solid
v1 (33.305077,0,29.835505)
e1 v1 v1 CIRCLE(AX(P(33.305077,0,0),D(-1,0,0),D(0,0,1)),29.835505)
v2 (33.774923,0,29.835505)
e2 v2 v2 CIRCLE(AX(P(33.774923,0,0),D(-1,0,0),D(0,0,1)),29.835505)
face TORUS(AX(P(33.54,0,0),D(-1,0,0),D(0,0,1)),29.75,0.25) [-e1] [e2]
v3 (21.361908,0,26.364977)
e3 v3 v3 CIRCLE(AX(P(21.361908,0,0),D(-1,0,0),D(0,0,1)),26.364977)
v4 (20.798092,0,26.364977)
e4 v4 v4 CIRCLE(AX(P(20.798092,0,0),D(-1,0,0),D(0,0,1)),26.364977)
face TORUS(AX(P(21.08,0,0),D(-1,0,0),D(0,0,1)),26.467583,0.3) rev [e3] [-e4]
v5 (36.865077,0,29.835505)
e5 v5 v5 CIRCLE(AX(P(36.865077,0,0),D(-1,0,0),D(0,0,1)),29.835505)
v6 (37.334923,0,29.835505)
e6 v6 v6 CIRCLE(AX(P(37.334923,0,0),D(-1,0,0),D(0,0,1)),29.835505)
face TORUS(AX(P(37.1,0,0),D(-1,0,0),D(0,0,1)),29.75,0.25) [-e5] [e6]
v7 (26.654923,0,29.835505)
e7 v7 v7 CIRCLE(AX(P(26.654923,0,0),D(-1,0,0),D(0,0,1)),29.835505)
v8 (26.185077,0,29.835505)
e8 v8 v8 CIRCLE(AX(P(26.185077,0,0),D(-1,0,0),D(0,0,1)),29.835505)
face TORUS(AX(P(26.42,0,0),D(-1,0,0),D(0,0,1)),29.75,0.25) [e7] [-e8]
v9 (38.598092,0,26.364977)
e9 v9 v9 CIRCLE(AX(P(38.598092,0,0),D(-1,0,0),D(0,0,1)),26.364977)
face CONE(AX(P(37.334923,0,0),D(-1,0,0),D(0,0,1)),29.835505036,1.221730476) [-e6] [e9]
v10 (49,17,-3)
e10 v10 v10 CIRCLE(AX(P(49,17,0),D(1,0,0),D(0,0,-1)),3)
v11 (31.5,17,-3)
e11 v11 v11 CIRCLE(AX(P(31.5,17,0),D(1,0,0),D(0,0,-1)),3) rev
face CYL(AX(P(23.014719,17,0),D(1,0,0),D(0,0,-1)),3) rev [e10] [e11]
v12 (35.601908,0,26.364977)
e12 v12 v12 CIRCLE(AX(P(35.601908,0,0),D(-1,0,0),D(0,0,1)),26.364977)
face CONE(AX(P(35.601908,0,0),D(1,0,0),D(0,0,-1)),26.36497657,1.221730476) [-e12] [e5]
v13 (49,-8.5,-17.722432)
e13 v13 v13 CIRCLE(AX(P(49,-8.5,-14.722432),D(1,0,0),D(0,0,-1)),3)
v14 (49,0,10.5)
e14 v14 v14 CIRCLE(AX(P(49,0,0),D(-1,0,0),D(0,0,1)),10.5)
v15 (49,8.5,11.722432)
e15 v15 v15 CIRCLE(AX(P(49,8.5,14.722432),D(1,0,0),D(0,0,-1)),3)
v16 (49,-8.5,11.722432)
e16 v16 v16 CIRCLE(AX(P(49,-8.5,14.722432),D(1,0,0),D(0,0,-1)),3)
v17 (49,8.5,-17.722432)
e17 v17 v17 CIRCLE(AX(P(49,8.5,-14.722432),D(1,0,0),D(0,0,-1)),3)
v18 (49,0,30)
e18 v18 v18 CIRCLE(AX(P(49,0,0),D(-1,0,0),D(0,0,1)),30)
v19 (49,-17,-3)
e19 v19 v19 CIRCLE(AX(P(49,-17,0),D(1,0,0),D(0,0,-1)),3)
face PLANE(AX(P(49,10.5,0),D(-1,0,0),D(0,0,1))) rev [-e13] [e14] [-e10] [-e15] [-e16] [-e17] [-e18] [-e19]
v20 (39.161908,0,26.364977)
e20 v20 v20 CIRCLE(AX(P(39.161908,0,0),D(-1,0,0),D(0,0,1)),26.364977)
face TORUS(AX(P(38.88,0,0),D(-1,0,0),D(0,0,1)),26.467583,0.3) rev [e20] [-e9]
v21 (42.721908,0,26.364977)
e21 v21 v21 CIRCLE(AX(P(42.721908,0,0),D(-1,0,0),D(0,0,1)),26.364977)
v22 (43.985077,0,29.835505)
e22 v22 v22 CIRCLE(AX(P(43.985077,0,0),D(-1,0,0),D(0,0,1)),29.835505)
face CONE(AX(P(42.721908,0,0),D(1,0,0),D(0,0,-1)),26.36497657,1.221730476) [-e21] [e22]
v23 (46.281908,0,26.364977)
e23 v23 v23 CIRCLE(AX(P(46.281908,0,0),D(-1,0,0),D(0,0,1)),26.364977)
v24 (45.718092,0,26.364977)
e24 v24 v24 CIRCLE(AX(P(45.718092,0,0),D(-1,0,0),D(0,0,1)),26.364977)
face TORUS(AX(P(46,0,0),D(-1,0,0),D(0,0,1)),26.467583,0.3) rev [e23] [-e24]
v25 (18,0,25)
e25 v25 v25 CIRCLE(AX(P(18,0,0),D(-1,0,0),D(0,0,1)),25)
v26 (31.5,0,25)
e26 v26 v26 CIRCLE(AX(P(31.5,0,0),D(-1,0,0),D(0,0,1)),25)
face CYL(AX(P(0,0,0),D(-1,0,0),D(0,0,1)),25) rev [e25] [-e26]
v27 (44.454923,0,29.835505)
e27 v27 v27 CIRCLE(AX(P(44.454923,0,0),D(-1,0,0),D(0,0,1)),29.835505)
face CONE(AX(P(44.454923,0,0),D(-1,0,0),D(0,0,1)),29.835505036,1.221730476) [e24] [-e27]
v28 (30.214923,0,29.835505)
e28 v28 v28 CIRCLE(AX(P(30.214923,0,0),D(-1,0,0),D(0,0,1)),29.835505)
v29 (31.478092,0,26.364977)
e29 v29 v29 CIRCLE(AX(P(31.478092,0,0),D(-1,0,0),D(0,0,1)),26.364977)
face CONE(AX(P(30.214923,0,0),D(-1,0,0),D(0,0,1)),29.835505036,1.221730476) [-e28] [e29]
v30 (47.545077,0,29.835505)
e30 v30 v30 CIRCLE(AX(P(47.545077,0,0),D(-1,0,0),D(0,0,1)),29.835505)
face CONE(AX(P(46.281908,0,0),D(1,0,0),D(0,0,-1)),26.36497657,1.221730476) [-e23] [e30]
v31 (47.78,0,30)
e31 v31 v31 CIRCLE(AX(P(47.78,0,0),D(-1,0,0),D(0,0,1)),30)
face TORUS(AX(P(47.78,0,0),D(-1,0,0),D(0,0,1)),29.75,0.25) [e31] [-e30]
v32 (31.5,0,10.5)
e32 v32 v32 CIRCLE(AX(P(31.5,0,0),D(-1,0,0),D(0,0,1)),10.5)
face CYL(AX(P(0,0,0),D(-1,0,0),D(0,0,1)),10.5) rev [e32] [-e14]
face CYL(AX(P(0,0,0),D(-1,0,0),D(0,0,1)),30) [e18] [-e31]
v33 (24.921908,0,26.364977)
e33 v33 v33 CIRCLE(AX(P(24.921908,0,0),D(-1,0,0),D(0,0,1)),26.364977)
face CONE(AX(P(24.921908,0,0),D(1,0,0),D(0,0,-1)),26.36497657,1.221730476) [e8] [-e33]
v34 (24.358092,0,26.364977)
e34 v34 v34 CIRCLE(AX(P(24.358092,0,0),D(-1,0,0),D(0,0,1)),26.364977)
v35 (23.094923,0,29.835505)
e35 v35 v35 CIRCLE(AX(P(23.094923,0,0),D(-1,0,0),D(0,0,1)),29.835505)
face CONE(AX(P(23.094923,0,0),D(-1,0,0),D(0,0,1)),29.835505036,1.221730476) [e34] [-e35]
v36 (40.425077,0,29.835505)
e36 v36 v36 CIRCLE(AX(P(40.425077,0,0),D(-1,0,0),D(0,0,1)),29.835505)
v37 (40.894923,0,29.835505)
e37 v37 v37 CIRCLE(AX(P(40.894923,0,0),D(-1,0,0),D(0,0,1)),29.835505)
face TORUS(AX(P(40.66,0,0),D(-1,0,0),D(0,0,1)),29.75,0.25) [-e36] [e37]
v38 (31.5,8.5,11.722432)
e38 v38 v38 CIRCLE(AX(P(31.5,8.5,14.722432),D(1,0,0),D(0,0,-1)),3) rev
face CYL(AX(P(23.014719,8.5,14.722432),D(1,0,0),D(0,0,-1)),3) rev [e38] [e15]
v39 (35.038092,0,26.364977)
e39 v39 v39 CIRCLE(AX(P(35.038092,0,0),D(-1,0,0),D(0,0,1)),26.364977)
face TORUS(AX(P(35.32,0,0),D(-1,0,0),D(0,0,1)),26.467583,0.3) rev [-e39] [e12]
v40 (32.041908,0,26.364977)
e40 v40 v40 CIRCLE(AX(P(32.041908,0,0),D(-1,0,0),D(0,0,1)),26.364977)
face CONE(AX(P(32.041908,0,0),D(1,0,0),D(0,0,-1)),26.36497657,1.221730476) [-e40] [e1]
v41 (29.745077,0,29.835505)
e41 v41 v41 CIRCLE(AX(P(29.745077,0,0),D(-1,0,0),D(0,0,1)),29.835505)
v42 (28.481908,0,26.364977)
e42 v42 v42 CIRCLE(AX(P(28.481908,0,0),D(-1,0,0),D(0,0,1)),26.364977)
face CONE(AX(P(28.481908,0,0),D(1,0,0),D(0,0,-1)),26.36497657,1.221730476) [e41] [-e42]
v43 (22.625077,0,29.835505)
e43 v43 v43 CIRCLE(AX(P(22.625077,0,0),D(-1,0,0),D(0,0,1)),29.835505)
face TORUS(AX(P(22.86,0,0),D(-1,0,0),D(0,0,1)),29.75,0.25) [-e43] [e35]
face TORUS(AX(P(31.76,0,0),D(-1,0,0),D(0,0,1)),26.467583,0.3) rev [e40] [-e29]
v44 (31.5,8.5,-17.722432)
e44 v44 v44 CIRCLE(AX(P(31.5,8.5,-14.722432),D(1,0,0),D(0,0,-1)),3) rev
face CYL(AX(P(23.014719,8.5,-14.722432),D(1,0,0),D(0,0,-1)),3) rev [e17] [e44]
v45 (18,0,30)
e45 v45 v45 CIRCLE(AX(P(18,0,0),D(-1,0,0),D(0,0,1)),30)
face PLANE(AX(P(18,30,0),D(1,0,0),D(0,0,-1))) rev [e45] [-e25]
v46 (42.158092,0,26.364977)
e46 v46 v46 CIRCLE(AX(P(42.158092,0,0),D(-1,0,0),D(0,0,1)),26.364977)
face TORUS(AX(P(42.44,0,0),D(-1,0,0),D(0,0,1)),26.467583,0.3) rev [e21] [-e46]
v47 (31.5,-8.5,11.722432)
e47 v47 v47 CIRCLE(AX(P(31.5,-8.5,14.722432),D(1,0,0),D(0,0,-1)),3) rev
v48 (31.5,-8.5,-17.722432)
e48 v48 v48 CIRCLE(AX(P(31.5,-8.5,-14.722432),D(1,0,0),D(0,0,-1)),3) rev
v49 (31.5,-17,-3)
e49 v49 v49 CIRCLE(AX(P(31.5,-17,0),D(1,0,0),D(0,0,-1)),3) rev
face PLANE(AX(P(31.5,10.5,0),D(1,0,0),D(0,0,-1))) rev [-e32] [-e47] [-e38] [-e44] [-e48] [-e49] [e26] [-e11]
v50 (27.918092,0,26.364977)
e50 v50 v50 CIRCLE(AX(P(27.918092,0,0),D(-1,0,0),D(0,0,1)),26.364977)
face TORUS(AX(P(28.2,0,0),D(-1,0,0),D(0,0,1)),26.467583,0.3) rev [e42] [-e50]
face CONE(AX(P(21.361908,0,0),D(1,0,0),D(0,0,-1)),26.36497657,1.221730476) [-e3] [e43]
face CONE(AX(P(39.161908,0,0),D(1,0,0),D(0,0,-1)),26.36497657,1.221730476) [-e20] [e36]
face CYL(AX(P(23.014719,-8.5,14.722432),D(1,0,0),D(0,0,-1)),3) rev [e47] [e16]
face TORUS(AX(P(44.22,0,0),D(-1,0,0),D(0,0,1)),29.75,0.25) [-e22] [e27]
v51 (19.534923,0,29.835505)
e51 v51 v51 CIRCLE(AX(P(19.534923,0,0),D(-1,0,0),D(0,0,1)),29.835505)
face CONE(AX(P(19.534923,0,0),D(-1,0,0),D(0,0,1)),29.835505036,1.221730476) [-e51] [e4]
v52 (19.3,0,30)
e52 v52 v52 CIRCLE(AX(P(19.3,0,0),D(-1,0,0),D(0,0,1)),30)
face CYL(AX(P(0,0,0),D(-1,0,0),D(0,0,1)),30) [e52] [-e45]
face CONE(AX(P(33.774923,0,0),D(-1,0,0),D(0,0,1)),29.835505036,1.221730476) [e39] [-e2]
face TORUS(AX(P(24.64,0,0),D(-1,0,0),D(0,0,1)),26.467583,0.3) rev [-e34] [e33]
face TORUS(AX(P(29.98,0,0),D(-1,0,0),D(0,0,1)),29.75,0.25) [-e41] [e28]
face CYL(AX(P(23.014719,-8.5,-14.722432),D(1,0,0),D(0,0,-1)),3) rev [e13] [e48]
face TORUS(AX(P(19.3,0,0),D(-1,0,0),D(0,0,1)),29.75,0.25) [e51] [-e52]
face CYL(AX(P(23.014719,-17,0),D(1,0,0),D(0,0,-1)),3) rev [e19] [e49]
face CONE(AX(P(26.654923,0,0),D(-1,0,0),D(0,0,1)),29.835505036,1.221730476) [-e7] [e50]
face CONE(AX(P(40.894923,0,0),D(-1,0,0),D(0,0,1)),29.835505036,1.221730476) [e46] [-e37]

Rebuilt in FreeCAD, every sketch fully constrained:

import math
import FreeCAD as App
import Part
import Sketcher
from FreeCAD import Vector
Q = App.Units.Quantity


def add_polygon(sketch, points):
    """Adds a closed chain of lines whose ends are joined by coincident constraints."""
    first, n = sketch.GeometryCount, len(points)
    for a, b in zip(points, points[1:] + points[:1]):
        sketch.addGeometry(Part.LineSegment(App.Vector(*a, 0), App.Vector(*b, 0)), False)
    for i in range(n):
        sketch.addConstraint(Sketcher.Constraint("Coincident", first + i, 2, first + (i + 1) % n, 1))

doc = App.newDocument("Part")
body = doc.addObject("PartDesign::Body", "Body")

# Sketch on XY plane
sketch1 = doc.addObject("Sketcher::SketchObject", "Sketch")
body.addObject(sketch1)
sketch1.AttachmentSupport = (doc.XY_Plane, [""])
sketch1.MapMode = "FlatFace"
add_polygon(sketch1, [(49, 10), (49, 30), (18, 30), (18, 25), (32, 25), (32, 10)])  # lines 0-5
sketch1.addConstraint([
    Sketcher.Constraint("Vertical", 0),
    Sketcher.Constraint("Horizontal", 1),
    Sketcher.Constraint("Vertical", 2),
    Sketcher.Constraint("Horizontal", 3),
    Sketcher.Constraint("Vertical", 4),
    Sketcher.Constraint("Horizontal", 5),
    Sketcher.Constraint("DistanceX", 1, 2, 1, 1, Q("31 mm")),
    Sketcher.Constraint("DistanceY", 2, 2, 2, 1, Q("5 mm")),
    Sketcher.Constraint("DistanceX", 3, 1, 3, 2, Q("13.5 mm")),
    Sketcher.Constraint("DistanceY", 0, 1, 0, 2, Q("19.5 mm")),
    Sketcher.Constraint("DistanceX", -1, 1, 0, 2, Q("49 mm")),
    Sketcher.Constraint("DistanceY", -1, 1, 0, 2, Q("30 mm")),
])
revolution = doc.addObject("PartDesign::Revolution", "Revolution")
body.addObject(revolution)
revolution.Profile = sketch1
revolution.ReferenceAxis = (sketch1, ["H_Axis"])
revolution.Angle = 360

# Sketch on XY plane
sketch2 = doc.addObject("Sketcher::SketchObject", "Sketch001")
body.addObject(sketch2)
sketch2.AttachmentSupport = (doc.XY_Plane, [""])
sketch2.MapMode = "FlatFace"
sketch2.addGeometry([
    Part.LineSegment(Vector(46.28, 26.36, 0), Vector(47.55, 29.84, 0)),  # 0
    Part.ArcOfCircle(Part.Circle(Vector(47.78, 29.75, 0), Vector(0, 0, 1), 0.25), math.radians(90), math.radians(160)),  # 1
    Part.LineSegment(Vector(47.78, 30, 0), Vector(44.22, 30, 0)),  # 2
    Part.ArcOfCircle(Part.Circle(Vector(44.22, 29.75, 0), Vector(0, 0, 1), 0.25), math.radians(20), math.radians(90)),  # 3
    Part.LineSegment(Vector(44.45, 29.84, 0), Vector(45.72, 26.36, 0)),  # 4
    Part.ArcOfCircle(Part.Circle(Vector(46, 26.47, 0), Vector(0, 0, 1), 0.3), math.radians(-160), math.radians(-20)),  # 5
], False)
sketch2.addConstraint([
    Sketcher.Constraint("Tangent", 0, 2, 1, 2),
    Sketcher.Constraint("Tangent", 1, 1, 2, 1),
    Sketcher.Constraint("Tangent", 2, 2, 3, 2),
    Sketcher.Constraint("Tangent", 3, 1, 4, 1),
    Sketcher.Constraint("Tangent", 4, 2, 5, 1),
    Sketcher.Constraint("Tangent", 5, 2, 0, 1),
    Sketcher.Constraint("Horizontal", 2),
    Sketcher.Constraint("Equal", 1, 3),
    Sketcher.Constraint("Horizontal", 0, 2, 3, 1),
    Sketcher.Constraint("Radius", 5, Q("0.3 mm")),
    Sketcher.Constraint("Angle", 0, Q("70 deg")),
    Sketcher.Constraint("Radius", 1, Q("0.25 mm")),
    Sketcher.Constraint("DistanceX", -1, 1, 5, 3, Q("46 mm")),
    Sketcher.Constraint("DistanceY", -1, 1, 1, 1, Q("30 mm")),
    Sketcher.Constraint("DistanceX", 2, 2, 2, 1, Q("3.56 mm")),
])
groove = doc.addObject("PartDesign::Groove", "Groove")
body.addObject(groove)
groove.Profile = sketch2
groove.ReferenceAxis = (sketch2, ["H_Axis"])
groove.Angle = 360
doc.recompute()

linearpattern = doc.addObject("PartDesign::LinearPattern", "LinearPattern")
body.addObject(linearpattern)
linearpattern.Originals = [groove]
linearpattern.Direction = (doc.X_Axis, [""])
linearpattern.Mode = "offset"
linearpattern.Offset = 3.56
linearpattern.Occurrences = 8
linearpattern.Reversed = True
body.Tip = linearpattern

# Sketch on YZ plane
sketch3 = doc.addObject("Sketcher::SketchObject", "Sketch002")
body.addObject(sketch3)
sketch3.AttachmentSupport = (doc.YZ_Plane, [""])
sketch3.MapMode = "FlatFace"
sketch3.AttachmentOffset = App.Placement(Vector(0, 0, 49), App.Rotation())
sketch3.addGeometry([
    Part.Circle(Vector(17, 0, 0), Vector(0, 0, 1), 3),  # 0
    Part.Circle(Vector(8.5, -14.7, 0), Vector(0, 0, 1), 3),  # 1
    Part.Circle(Vector(-8.5, -14.7, 0), Vector(0, 0, 1), 3),  # 2
    Part.Circle(Vector(-17, 0, 0), Vector(0, 0, 1), 3),  # 3
    Part.Circle(Vector(-8.5, 14.7, 0), Vector(0, 0, 1), 3),  # 4
    Part.Circle(Vector(8.5, 14.7, 0), Vector(0, 0, 1), 3),  # 5
], False)
sketch3.addConstraint([
    Sketcher.Constraint("Equal", 0, 1),
    Sketcher.Constraint("Equal", 1, 2),
    Sketcher.Constraint("Equal", 2, 3),
    Sketcher.Constraint("Equal", 3, 4),
    Sketcher.Constraint("Equal", 4, 5),
    Sketcher.Constraint("Symmetric", 0, 3, 3, 3, -1, 1),
    Sketcher.Constraint("Symmetric", 1, 3, 4, 3, -1, 1),
    Sketcher.Constraint("Symmetric", 2, 3, 5, 3, -1, 1),
    Sketcher.Constraint("Symmetric", 1, 3, 2, 3, -2),
    Sketcher.Constraint("PointOnObject", 0, 3, -1),
    Sketcher.Constraint("Diameter", 0, Q("6 mm")),
    Sketcher.Constraint("DistanceX", -1, 1, 0, 3, Q("17 mm")),
    Sketcher.Constraint("DistanceX", 2, 3, 1, 3, Q("17 mm")),
    Sketcher.Constraint("DistanceY", 1, 3, -1, 1, Q("14.722432 mm")),
])
pocket1 = doc.addObject("PartDesign::Pocket", "Pocket")
body.addObject(pocket1)
pocket1.Profile = sketch3
pocket1.Length = 17.5

doc.recompute()
